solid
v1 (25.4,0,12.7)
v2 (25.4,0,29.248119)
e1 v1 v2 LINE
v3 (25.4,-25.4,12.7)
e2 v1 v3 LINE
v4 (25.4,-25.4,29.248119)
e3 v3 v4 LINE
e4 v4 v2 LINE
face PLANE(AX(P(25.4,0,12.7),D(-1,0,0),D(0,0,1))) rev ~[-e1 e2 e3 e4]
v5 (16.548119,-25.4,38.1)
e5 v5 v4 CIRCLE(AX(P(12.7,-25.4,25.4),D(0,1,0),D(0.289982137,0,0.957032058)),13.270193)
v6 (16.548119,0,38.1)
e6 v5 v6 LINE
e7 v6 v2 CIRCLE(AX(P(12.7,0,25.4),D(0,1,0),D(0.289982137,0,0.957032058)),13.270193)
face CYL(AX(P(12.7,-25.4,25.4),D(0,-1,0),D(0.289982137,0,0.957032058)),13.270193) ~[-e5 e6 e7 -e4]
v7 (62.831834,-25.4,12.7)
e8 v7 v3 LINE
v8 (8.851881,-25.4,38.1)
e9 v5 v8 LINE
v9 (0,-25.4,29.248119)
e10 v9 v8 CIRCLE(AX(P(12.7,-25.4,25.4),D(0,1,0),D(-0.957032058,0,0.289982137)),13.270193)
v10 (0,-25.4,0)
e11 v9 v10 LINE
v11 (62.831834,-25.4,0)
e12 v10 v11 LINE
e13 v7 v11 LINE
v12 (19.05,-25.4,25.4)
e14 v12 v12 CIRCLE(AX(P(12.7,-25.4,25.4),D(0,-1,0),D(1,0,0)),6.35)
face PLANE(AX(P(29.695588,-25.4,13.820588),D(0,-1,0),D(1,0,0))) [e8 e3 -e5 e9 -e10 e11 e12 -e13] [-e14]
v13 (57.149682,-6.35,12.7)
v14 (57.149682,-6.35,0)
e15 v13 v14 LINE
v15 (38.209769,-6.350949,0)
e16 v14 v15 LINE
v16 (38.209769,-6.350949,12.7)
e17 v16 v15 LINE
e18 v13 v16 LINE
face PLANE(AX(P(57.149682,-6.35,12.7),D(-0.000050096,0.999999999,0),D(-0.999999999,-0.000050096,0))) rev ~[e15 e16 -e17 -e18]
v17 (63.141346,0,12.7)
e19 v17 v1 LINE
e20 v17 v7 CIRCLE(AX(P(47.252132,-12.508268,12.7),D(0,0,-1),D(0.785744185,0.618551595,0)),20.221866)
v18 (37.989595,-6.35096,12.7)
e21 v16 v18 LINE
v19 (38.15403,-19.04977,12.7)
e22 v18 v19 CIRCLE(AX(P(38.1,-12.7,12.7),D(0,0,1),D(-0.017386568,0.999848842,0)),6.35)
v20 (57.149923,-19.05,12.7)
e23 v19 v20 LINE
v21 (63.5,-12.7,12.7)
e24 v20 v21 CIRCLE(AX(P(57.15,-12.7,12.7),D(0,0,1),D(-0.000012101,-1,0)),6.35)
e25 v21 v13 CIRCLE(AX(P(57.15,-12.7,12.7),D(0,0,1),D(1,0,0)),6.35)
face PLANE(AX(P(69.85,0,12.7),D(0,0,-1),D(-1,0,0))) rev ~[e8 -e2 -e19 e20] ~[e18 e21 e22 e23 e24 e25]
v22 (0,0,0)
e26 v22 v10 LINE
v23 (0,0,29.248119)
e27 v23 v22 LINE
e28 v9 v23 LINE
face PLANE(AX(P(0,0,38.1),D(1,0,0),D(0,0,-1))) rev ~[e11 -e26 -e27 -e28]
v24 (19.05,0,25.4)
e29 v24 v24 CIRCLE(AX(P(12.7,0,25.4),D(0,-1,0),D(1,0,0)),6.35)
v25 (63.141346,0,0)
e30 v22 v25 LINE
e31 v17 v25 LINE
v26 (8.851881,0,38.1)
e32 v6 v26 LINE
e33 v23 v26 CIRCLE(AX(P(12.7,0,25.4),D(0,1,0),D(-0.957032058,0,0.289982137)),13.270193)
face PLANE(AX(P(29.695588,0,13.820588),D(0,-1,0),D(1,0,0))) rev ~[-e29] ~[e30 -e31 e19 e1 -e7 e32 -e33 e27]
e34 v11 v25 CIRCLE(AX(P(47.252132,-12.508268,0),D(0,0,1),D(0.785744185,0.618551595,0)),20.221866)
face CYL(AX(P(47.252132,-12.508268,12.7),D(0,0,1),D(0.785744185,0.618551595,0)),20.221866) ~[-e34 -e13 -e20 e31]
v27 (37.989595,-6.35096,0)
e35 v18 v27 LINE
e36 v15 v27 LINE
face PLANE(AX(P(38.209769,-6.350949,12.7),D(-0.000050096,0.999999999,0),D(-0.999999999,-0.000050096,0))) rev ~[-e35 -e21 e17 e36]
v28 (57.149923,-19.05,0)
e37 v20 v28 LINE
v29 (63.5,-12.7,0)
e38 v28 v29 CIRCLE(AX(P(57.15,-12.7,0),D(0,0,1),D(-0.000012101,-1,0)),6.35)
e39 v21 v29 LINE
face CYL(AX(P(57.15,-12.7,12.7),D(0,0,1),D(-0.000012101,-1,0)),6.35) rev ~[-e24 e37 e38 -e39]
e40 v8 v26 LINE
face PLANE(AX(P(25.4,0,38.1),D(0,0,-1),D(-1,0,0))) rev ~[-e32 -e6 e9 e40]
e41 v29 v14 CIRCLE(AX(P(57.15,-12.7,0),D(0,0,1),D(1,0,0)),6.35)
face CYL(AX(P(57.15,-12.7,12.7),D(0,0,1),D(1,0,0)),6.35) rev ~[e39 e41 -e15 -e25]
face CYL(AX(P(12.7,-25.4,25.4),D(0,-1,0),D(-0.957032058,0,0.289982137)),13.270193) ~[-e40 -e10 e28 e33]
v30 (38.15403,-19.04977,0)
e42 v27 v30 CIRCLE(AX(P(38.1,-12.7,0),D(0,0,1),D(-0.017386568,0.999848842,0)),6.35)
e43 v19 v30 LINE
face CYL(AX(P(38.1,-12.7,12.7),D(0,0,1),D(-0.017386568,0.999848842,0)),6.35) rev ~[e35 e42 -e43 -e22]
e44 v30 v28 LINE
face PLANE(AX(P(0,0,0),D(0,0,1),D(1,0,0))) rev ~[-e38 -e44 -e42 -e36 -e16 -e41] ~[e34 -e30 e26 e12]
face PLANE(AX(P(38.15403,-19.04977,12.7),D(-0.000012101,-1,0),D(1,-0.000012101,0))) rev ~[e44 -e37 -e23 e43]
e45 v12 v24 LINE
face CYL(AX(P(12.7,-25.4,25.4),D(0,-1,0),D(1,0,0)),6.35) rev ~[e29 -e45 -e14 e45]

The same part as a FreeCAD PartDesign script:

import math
import FreeCAD as App
import Part
import Sketcher
from FreeCAD import Vector
Q = App.Units.Quantity


def add_polygon(sketch, points):
    """Adds a closed chain of lines whose ends are joined by coincident constraints."""
    first, n = sketch.GeometryCount, len(points)
    for a, b in zip(points, points[1:] + points[:1]):
        sketch.addGeometry(Part.LineSegment(App.Vector(*a, 0), App.Vector(*b, 0)), False)
    for i in range(n):
        sketch.addConstraint(Sketcher.Constraint("Coincident", first + i, 2, first + (i + 1) % n, 1))

doc = App.newDocument("Part")
params = doc.addObject("Spreadsheet::Sheet", "Params")
for row, (alias, value) in enumerate([
    ("sketch1_width", "1 in"),
    ("sketch1_height", "1.5 in"),
    ("sketch1_width2", "2.75 in"),
    ("pad1_length", "1 in"),
    ("sketch2_diameter", "0.5 in"),
    ("pocket1_length", "1 in"),
    ("pocket2_length", "1 in"),
    ("sketch4_height", "1 in"),
    ("sketch4_radius", "0.25 in"),
    ("pocket3_length", "1 in"),
], start=1):
    params.set(f"A{row}", alias)
    params.set(f"B{row}", "=" + value)
    params.setAlias(f"B{row}", alias)

body = doc.addObject("PartDesign::Body", "Body")

# Sketch on XZ plane
sketch1 = body.newObject("Sketcher::SketchObject", "Sketch")
sketch1.AttachmentSupport = (doc.getObject("XZ_Plane"), [""])
sketch1.MapMode = "FlatFace"
add_polygon(sketch1, [(0, 38), (0, 0), (70, 0), (70, 13), (25, 13), (25, 38)])  # lines 0-5
sketch1.addConstraint(Sketcher.Constraint("Vertical", 0))
sketch1.addConstraint(Sketcher.Constraint("Horizontal", 1))
sketch1.addConstraint(Sketcher.Constraint("Vertical", 2))
sketch1.addConstraint(Sketcher.Constraint("Horizontal", 3))
sketch1.addConstraint(Sketcher.Constraint("Vertical", 4))
sketch1.addConstraint(Sketcher.Constraint("Horizontal", 5))
sketch1.addConstraint(Sketcher.Constraint("Coincident", 0, 2, -1, 1))
sketch1.addConstraint(Sketcher.Constraint("Equal", 5, 4))
sketch1.addConstraint(Sketcher.Constraint("DistanceX", 5, 2, 5, 1, Q("1 in")))
sketch1.addConstraint(Sketcher.Constraint("DistanceY", 0, 2, 0, 1, Q("1.5 in")))
sketch1.addConstraint(Sketcher.Constraint("DistanceX", 1, 1, 1, 2, Q("2.75 in")))
sketch1.setExpression("Constraints[14]", "Params.sketch1_width")
sketch1.setExpression("Constraints[15]", "Params.sketch1_height")
sketch1.setExpression("Constraints[16]", "Params.sketch1_width2")
pad1 = body.newObject("PartDesign::Pad", "Pad")
pad1.Profile = sketch1
pad1.setExpression("Length", "Params.pad1_length")

# Sketch on XZ plane
sketch2 = body.newObject("Sketcher::SketchObject", "Sketch001")
sketch2.AttachmentSupport = (doc.getObject("XZ_Plane"), [""])
sketch2.MapMode = "FlatFace"
sketch2.AttachmentOffset = App.Placement(Vector(0, 0, 1 * 25.4), App.Rotation())
sketch2.addGeometry(Part.Circle(Vector(13, 25, 0), Vector(0, 0, 1), 6), False)
sketch2.addConstraint(Sketcher.Constraint("Diameter", 0, Q("0.5 in")))
sketch2.addConstraint(Sketcher.Constraint("DistanceY", -1, 1, 0, 3, Q("1 in")))
sketch2.addConstraint(Sketcher.Constraint("DistanceX", -1, 1, 0, 3, Q("0.5 in")))
sketch2.setExpression("Constraints[0]", "Params.sketch2_diameter")
pocket1 = body.newObject("PartDesign::Pocket", "Pocket")
pocket1.Profile = sketch2
pocket1.setExpression("Length", "Params.pocket1_length")

# Sketch on XZ plane
sketch3 = body.newObject("Sketcher::SketchObject", "Sketch002")
sketch3.AttachmentSupport = (doc.getObject("XZ_Plane"), [""])
sketch3.MapMode = "FlatFace"
sketch3.AttachmentOffset = App.Placement(Vector(0, 0, 1 * 25.4), App.Rotation())
sketch3.addGeometry(Part.ArcOfCircle(Part.Circle(Vector(13, 25, 0), Vector(0, 0, 1), 13), math.radians(107), math.radians(163)), False)
sketch3.addGeometry(Part.LineSegment(Vector(9, 38, 0), Vector(0, 38, 0)), False)
sketch3.addGeometry(Part.LineSegment(Vector(0, 38, 0), Vector(0, 29, 0)), False)
sketch3.addGeometry(Part.ArcOfCircle(Part.Circle(Vector(13, 25, 0), Vector(0, 0, 1), 13), math.radians(17), math.radians(73)), False)
sketch3.addGeometry(Part.LineSegment(Vector(25, 29, 0), Vector(25, 38, 0)), False)
sketch3.addGeometry(Part.LineSegment(Vector(25, 38, 0), Vector(17, 38, 0)), False)
sketch3.addConstraint(Sketcher.Constraint("Coincident", 0, 1, 1, 1))
sketch3.addConstraint(Sketcher.Constraint("Coincident", 1, 2, 2, 1))
sketch3.addConstraint(Sketcher.Constraint("Coincident", 2, 2, 0, 2))
sketch3.addConstraint(Sketcher.Constraint("Coincident", 3, 1, 4, 1))
sketch3.addConstraint(Sketcher.Constraint("Coincident", 4, 2, 5, 1))
sketch3.addConstraint(Sketcher.Constraint("Coincident", 5, 2, 3, 2))
sketch3.addConstraint(Sketcher.Constraint("Horizontal", 1))
sketch3.addConstraint(Sketcher.Constraint("Vertical", 2))
sketch3.addConstraint(Sketcher.Constraint("Vertical", 4))
sketch3.addConstraint(Sketcher.Constraint("Horizontal", 5))
sketch3.addConstraint(Sketcher.Constraint("Coincident", 3, 3, 0, 3))
sketch3.addConstraint(Sketcher.Constraint("Equal", 0, 3))
sketch3.addConstraint(Sketcher.Constraint("PointOnObject", 1, 2, -2))
sketch3.addConstraint(Sketcher.Constraint("Horizontal", 2, 2, 3, 1))
sketch3.addConstraint(Sketcher.Constraint("Horizontal", 1, 2, 4, 2))
sketch3.addConstraint(Sketcher.Constraint("Equal", 5, 2))
sketch3.addConstraint(Sketcher.Constraint("DistanceY", -1, 1, 0, 3, Q("1 in")))
sketch3.addConstraint(Sketcher.Constraint("DistanceX", -1, 1, 3, 1, Q("1 in")))
sketch3.addConstraint(Sketcher.Constraint("Radius", 0, 13.270193))
pocket2 = body.newObject("PartDesign::Pocket", "Pocket001")
pocket2.Profile = sketch3
pocket2.setExpression("Length", "Params.pocket2_length")

# Sketch on XY plane
sketch4 = body.newObject("Sketcher::SketchObject", "Sketch003")
sketch4.AttachmentSupport = (doc.getObject("XY_Plane"), [""])
sketch4.MapMode = "FlatFace"
sketch4.AttachmentOffset = App.Placement(Vector(0, 0, 0.5 * 25.4), App.Rotation())
sketch4.addGeometry(Part.LineSegment(Vector(38.21, -6.35, 0), Vector(37.99, -6.35, 0)), False)
sketch4.addGeometry(Part.ArcOfCircle(Part.Circle(Vector(38.1, -12.7, 0), Vector(0, 0, 1), 6.35), math.radians(91), math.radians(270)), False)
sketch4.addGeometry(Part.LineSegment(Vector(38.15, -19.05, 0), Vector(57.15, -19.05, 0)), False)
sketch4.addGeometry(Part.ArcOfCircle(Part.Circle(Vector(57.15, -12.7, 0), Vector(0, 0, 1), 6.35), math.radians(-90), math.radians(0)), False)
sketch4.addGeometry(Part.ArcOfCircle(Part.Circle(Vector(57.15, -12.7, 0), Vector(0, 0, 1), 6.35), math.radians(0), math.radians(90)), False)
sketch4.addGeometry(Part.LineSegment(Vector(57.15, -6.35, 0), Vector(38.21, -6.35, 0)), False)
sketch4.addGeometry(Part.ArcOfCircle(Part.Circle(Vector(47.25, -12.51, 0), Vector(0, 0, 1), 20.22), math.radians(-40), math.radians(38)), False)
sketch4.addGeometry(Part.LineSegment(Vector(62.83, -25.4, 0), Vector(69.85, -25.4, 0)), False)
sketch4.addGeometry(Part.LineSegment(Vector(69.85, -25.4, 0), Vector(69.85, 0, 0)), False)
sketch4.addGeometry(Part.LineSegment(Vector(69.85, 0, 0), Vector(63.14, 0, 0)), False)
sketch4.addConstraint(Sketcher.Constraint("Coincident", 0, 2, 1, 1))
sketch4.addConstraint(Sketcher.Constraint("Coincident", 1, 2, 2, 1))
sketch4.addConstraint(Sketcher.Constraint("Tangent", 2, 2, 3, 1))
sketch4.addConstraint(Sketcher.Constraint("Tangent", 3, 2, 4, 1))
sketch4.addConstraint(Sketcher.Constraint("Tangent", 4, 2, 5, 1))
sketch4.addConstraint(Sketcher.Constraint("Coincident", 5, 2, 0, 1))
sketch4.addConstraint(Sketcher.Constraint("Coincident", 6, 1, 7, 1))
sketch4.addConstraint(Sketcher.Constraint("Coincident", 7, 2, 8, 1))
sketch4.addConstraint(Sketcher.Constraint("Coincident", 8, 2, 9, 1))
sketch4.addConstraint(Sketcher.Constraint("Coincident", 9, 2, 6, 2))
sketch4.addConstraint(Sketcher.Constraint("Horizontal", 7))
sketch4.addConstraint(Sketcher.Constraint("Vertical", 8))
sketch4.addConstraint(Sketcher.Constraint("Horizontal", 9))
sketch4.addConstraint(Sketcher.Constraint("Equal", 1, 3))
sketch4.addConstraint(Sketcher.Constraint("Equal", 3, 4))
sketch4.addConstraint(Sketcher.Constraint("PointOnObject", 8, 2, -1))
sketch4.addConstraint(Sketcher.Constraint("Parallel", 0, 5))
sketch4.addConstraint(Sketcher.Constraint("Horizontal", 1, 3, 3, 3))
sketch4.addConstraint(Sketcher.Constraint("Horizontal", 4, 3, 3, 2))
sketch4.addConstraint(Sketcher.Constraint("DistanceY", 8, 1, 8, 2, Q("1 in")))
sketch4.addConstraint(Sketcher.Constraint("Radius", 1, Q("0.25 in")))
sketch4.addConstraint(Sketcher.Constraint("DistanceX", 1, 3, 3, 2, Q("1 in")))
sketch4.addConstraint(Sketcher.Constraint("DistanceX", -1, 1, 1, 3, Q("1.5 in")))
sketch4.addConstraint(Sketcher.Constraint("DistanceY", 1, 3, -1, 1, Q("0.5 in")))
sketch4.addConstraint(Sketcher.Constraint("DistanceX", 3, 3, 7, 2, Q("0.5 in")))
sketch4.addConstraint(Sketcher.Constraint("Radius", 6, 20.221866))
sketch4.addConstraint(Sketcher.Constraint("DistanceX", 7, 1, 7, 2, 7.018166))
sketch4.addConstraint(Sketcher.Constraint("DistanceX", 9, 2, 9, 1, 6.708654))
sketch4.addConstraint(Sketcher.Constraint("DistanceY", 0, 2, -1, 1, 6.35096))
sketch4.addConstraint(Sketcher.Constraint("DistanceX", -1, 1, 1, 2, 38.15403))
sketch4.addConstraint(Sketcher.Constraint("DistanceX", -1, 1, 5, 2, 38.209769))
sketch4.setExpression("Constraints[19]", "Params.sketch4_height")
sketch4.setExpression("Constraints[20]", "Params.sketch4_radius")
pocket3 = body.newObject("PartDesign::Pocket", "Pocket002")
pocket3.Profile = sketch4
pocket3.setExpression("Length", "Params.pocket3_length")

doc.recompute()
